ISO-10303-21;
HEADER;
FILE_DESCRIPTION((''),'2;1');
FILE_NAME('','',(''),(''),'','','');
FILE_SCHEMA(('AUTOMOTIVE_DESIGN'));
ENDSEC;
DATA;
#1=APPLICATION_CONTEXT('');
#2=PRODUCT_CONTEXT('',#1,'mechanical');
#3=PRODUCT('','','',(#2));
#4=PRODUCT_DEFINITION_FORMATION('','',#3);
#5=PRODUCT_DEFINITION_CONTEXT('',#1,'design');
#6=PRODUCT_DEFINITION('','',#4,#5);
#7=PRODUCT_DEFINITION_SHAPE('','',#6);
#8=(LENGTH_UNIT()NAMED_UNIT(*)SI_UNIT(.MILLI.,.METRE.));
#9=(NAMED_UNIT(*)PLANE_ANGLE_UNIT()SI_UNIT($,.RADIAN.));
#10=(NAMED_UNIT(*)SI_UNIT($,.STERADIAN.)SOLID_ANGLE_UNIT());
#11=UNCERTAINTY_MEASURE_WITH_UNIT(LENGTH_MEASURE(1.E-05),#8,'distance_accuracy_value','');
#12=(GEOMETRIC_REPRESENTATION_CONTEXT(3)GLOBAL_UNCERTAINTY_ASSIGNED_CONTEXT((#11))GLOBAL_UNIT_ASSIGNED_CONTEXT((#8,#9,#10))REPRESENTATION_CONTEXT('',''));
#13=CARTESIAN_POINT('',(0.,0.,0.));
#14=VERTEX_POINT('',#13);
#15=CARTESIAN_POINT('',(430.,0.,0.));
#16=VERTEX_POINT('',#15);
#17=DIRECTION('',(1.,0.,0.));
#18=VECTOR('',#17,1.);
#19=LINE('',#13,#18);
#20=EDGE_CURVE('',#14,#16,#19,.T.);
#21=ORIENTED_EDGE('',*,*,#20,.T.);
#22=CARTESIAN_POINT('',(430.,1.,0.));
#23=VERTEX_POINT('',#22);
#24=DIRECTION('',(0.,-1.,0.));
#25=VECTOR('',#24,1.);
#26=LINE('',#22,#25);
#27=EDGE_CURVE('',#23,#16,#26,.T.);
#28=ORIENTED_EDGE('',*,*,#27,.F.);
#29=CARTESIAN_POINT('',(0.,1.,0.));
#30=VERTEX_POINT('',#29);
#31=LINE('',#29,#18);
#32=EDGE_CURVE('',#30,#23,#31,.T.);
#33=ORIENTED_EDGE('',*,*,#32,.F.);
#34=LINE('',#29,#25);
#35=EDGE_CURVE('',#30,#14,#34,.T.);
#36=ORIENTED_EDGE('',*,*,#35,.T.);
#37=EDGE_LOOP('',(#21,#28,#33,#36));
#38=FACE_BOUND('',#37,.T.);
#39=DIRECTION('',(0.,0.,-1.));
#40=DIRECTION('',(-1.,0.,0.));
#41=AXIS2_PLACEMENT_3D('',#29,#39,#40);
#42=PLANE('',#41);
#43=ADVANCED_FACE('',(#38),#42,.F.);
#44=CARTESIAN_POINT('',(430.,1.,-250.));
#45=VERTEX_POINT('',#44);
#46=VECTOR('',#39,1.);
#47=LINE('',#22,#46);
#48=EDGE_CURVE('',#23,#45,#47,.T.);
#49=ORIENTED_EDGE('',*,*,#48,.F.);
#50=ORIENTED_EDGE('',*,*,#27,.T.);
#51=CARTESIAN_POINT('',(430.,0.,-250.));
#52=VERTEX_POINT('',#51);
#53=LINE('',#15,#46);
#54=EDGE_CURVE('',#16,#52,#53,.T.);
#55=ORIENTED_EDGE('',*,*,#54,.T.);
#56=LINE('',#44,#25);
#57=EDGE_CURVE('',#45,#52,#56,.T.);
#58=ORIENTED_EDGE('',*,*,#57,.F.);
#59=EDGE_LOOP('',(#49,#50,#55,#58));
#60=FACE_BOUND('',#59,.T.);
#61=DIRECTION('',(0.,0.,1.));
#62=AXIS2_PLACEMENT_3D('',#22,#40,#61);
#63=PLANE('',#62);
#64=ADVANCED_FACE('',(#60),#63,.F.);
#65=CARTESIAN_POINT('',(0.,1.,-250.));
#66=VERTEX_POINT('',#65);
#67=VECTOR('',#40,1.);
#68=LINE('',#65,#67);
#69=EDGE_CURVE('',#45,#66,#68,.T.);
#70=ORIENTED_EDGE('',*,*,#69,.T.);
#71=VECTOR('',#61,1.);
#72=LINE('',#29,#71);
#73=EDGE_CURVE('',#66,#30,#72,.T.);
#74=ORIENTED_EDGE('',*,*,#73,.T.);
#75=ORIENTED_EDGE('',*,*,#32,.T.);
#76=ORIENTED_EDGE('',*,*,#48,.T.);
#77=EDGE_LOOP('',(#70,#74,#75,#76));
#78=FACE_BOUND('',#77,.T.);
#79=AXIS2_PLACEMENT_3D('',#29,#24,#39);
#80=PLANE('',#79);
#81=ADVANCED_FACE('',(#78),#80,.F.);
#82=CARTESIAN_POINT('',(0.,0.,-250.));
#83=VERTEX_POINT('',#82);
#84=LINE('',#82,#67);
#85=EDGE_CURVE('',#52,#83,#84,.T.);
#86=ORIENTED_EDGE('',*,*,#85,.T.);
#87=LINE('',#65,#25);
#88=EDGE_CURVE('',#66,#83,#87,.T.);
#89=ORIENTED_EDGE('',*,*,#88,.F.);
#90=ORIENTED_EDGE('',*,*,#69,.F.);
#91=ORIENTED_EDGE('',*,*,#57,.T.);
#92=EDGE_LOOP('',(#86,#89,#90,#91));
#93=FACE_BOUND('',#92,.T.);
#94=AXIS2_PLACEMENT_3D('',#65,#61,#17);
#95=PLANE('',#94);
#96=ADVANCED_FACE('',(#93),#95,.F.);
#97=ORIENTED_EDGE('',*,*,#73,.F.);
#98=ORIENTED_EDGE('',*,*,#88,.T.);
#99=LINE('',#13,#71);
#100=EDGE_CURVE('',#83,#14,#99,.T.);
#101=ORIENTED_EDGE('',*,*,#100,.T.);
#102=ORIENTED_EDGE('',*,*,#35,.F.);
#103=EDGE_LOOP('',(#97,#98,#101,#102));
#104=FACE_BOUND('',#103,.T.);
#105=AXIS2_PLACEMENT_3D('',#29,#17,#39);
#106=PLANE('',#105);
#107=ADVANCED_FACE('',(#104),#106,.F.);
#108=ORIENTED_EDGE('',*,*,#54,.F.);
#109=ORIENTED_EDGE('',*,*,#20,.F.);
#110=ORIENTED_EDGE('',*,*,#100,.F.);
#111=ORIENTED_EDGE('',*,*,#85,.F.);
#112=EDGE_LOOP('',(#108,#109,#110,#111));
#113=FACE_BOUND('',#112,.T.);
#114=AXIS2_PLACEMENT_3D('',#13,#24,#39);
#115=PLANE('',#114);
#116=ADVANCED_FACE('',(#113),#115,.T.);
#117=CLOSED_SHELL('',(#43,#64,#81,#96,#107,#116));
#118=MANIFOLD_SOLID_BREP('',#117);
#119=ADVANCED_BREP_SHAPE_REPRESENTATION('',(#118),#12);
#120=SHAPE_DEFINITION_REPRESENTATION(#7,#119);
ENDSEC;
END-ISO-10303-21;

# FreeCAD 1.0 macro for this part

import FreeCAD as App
import Part
import Sketcher

doc = App.newDocument("Part")
body = doc.addObject("PartDesign::Body", "Body")

# Sketch on XZ plane
sketch1 = body.newObject("Sketcher::SketchObject", "Sketch")
sketch1.AttachmentSupport = (doc.getObject("XZ_Plane"), [""])
sketch1.MapMode = "FlatFace"
sketch1.addGeometry(Part.LineSegment(App.Vector(0, -250, 0), App.Vector(0, 0, 0)), False)
sketch1.addGeometry(Part.LineSegment(App.Vector(0, 0, 0), App.Vector(430, 0, 0)), False)
sketch1.addGeometry(Part.LineSegment(App.Vector(430, 0, 0), App.Vector(430, -250, 0)), False)
sketch1.addGeometry(Part.LineSegment(App.Vector(430, -250, 0), App.Vector(0, -250, 0)), False)
sketch1.addConstraint(Sketcher.Constraint("Coincident", 0, 2, 1, 1))
sketch1.addConstraint(Sketcher.Constraint("Coincident", 1, 2, 2, 1))
sketch1.addConstraint(Sketcher.Constraint("Coincident", 2, 2, 3, 1))
sketch1.addConstraint(Sketcher.Constraint("Coincident", 3, 2, 0, 1))
sketch1.addConstraint(Sketcher.Constraint("Vertical", 0))
sketch1.addConstraint(Sketcher.Constraint("Horizontal", 1))
sketch1.addConstraint(Sketcher.Constraint("Vertical", 2))
sketch1.addConstraint(Sketcher.Constraint("Horizontal", 3))
sketch1.addConstraint(Sketcher.Constraint("Coincident", 0, 2, -1, 1))
sketch1.addConstraint(Sketcher.Constraint("DistanceX", 1, 1, 1, 2, 430.0))
sketch1.addConstraint(Sketcher.Constraint("DistanceY", 0, 1, 0, 2, 250.0))
pad1 = body.newObject("PartDesign::Pad", "Pad")
pad1.Profile = sketch1
pad1.Length = 1
pad1.Reversed = True

doc.recompute()
